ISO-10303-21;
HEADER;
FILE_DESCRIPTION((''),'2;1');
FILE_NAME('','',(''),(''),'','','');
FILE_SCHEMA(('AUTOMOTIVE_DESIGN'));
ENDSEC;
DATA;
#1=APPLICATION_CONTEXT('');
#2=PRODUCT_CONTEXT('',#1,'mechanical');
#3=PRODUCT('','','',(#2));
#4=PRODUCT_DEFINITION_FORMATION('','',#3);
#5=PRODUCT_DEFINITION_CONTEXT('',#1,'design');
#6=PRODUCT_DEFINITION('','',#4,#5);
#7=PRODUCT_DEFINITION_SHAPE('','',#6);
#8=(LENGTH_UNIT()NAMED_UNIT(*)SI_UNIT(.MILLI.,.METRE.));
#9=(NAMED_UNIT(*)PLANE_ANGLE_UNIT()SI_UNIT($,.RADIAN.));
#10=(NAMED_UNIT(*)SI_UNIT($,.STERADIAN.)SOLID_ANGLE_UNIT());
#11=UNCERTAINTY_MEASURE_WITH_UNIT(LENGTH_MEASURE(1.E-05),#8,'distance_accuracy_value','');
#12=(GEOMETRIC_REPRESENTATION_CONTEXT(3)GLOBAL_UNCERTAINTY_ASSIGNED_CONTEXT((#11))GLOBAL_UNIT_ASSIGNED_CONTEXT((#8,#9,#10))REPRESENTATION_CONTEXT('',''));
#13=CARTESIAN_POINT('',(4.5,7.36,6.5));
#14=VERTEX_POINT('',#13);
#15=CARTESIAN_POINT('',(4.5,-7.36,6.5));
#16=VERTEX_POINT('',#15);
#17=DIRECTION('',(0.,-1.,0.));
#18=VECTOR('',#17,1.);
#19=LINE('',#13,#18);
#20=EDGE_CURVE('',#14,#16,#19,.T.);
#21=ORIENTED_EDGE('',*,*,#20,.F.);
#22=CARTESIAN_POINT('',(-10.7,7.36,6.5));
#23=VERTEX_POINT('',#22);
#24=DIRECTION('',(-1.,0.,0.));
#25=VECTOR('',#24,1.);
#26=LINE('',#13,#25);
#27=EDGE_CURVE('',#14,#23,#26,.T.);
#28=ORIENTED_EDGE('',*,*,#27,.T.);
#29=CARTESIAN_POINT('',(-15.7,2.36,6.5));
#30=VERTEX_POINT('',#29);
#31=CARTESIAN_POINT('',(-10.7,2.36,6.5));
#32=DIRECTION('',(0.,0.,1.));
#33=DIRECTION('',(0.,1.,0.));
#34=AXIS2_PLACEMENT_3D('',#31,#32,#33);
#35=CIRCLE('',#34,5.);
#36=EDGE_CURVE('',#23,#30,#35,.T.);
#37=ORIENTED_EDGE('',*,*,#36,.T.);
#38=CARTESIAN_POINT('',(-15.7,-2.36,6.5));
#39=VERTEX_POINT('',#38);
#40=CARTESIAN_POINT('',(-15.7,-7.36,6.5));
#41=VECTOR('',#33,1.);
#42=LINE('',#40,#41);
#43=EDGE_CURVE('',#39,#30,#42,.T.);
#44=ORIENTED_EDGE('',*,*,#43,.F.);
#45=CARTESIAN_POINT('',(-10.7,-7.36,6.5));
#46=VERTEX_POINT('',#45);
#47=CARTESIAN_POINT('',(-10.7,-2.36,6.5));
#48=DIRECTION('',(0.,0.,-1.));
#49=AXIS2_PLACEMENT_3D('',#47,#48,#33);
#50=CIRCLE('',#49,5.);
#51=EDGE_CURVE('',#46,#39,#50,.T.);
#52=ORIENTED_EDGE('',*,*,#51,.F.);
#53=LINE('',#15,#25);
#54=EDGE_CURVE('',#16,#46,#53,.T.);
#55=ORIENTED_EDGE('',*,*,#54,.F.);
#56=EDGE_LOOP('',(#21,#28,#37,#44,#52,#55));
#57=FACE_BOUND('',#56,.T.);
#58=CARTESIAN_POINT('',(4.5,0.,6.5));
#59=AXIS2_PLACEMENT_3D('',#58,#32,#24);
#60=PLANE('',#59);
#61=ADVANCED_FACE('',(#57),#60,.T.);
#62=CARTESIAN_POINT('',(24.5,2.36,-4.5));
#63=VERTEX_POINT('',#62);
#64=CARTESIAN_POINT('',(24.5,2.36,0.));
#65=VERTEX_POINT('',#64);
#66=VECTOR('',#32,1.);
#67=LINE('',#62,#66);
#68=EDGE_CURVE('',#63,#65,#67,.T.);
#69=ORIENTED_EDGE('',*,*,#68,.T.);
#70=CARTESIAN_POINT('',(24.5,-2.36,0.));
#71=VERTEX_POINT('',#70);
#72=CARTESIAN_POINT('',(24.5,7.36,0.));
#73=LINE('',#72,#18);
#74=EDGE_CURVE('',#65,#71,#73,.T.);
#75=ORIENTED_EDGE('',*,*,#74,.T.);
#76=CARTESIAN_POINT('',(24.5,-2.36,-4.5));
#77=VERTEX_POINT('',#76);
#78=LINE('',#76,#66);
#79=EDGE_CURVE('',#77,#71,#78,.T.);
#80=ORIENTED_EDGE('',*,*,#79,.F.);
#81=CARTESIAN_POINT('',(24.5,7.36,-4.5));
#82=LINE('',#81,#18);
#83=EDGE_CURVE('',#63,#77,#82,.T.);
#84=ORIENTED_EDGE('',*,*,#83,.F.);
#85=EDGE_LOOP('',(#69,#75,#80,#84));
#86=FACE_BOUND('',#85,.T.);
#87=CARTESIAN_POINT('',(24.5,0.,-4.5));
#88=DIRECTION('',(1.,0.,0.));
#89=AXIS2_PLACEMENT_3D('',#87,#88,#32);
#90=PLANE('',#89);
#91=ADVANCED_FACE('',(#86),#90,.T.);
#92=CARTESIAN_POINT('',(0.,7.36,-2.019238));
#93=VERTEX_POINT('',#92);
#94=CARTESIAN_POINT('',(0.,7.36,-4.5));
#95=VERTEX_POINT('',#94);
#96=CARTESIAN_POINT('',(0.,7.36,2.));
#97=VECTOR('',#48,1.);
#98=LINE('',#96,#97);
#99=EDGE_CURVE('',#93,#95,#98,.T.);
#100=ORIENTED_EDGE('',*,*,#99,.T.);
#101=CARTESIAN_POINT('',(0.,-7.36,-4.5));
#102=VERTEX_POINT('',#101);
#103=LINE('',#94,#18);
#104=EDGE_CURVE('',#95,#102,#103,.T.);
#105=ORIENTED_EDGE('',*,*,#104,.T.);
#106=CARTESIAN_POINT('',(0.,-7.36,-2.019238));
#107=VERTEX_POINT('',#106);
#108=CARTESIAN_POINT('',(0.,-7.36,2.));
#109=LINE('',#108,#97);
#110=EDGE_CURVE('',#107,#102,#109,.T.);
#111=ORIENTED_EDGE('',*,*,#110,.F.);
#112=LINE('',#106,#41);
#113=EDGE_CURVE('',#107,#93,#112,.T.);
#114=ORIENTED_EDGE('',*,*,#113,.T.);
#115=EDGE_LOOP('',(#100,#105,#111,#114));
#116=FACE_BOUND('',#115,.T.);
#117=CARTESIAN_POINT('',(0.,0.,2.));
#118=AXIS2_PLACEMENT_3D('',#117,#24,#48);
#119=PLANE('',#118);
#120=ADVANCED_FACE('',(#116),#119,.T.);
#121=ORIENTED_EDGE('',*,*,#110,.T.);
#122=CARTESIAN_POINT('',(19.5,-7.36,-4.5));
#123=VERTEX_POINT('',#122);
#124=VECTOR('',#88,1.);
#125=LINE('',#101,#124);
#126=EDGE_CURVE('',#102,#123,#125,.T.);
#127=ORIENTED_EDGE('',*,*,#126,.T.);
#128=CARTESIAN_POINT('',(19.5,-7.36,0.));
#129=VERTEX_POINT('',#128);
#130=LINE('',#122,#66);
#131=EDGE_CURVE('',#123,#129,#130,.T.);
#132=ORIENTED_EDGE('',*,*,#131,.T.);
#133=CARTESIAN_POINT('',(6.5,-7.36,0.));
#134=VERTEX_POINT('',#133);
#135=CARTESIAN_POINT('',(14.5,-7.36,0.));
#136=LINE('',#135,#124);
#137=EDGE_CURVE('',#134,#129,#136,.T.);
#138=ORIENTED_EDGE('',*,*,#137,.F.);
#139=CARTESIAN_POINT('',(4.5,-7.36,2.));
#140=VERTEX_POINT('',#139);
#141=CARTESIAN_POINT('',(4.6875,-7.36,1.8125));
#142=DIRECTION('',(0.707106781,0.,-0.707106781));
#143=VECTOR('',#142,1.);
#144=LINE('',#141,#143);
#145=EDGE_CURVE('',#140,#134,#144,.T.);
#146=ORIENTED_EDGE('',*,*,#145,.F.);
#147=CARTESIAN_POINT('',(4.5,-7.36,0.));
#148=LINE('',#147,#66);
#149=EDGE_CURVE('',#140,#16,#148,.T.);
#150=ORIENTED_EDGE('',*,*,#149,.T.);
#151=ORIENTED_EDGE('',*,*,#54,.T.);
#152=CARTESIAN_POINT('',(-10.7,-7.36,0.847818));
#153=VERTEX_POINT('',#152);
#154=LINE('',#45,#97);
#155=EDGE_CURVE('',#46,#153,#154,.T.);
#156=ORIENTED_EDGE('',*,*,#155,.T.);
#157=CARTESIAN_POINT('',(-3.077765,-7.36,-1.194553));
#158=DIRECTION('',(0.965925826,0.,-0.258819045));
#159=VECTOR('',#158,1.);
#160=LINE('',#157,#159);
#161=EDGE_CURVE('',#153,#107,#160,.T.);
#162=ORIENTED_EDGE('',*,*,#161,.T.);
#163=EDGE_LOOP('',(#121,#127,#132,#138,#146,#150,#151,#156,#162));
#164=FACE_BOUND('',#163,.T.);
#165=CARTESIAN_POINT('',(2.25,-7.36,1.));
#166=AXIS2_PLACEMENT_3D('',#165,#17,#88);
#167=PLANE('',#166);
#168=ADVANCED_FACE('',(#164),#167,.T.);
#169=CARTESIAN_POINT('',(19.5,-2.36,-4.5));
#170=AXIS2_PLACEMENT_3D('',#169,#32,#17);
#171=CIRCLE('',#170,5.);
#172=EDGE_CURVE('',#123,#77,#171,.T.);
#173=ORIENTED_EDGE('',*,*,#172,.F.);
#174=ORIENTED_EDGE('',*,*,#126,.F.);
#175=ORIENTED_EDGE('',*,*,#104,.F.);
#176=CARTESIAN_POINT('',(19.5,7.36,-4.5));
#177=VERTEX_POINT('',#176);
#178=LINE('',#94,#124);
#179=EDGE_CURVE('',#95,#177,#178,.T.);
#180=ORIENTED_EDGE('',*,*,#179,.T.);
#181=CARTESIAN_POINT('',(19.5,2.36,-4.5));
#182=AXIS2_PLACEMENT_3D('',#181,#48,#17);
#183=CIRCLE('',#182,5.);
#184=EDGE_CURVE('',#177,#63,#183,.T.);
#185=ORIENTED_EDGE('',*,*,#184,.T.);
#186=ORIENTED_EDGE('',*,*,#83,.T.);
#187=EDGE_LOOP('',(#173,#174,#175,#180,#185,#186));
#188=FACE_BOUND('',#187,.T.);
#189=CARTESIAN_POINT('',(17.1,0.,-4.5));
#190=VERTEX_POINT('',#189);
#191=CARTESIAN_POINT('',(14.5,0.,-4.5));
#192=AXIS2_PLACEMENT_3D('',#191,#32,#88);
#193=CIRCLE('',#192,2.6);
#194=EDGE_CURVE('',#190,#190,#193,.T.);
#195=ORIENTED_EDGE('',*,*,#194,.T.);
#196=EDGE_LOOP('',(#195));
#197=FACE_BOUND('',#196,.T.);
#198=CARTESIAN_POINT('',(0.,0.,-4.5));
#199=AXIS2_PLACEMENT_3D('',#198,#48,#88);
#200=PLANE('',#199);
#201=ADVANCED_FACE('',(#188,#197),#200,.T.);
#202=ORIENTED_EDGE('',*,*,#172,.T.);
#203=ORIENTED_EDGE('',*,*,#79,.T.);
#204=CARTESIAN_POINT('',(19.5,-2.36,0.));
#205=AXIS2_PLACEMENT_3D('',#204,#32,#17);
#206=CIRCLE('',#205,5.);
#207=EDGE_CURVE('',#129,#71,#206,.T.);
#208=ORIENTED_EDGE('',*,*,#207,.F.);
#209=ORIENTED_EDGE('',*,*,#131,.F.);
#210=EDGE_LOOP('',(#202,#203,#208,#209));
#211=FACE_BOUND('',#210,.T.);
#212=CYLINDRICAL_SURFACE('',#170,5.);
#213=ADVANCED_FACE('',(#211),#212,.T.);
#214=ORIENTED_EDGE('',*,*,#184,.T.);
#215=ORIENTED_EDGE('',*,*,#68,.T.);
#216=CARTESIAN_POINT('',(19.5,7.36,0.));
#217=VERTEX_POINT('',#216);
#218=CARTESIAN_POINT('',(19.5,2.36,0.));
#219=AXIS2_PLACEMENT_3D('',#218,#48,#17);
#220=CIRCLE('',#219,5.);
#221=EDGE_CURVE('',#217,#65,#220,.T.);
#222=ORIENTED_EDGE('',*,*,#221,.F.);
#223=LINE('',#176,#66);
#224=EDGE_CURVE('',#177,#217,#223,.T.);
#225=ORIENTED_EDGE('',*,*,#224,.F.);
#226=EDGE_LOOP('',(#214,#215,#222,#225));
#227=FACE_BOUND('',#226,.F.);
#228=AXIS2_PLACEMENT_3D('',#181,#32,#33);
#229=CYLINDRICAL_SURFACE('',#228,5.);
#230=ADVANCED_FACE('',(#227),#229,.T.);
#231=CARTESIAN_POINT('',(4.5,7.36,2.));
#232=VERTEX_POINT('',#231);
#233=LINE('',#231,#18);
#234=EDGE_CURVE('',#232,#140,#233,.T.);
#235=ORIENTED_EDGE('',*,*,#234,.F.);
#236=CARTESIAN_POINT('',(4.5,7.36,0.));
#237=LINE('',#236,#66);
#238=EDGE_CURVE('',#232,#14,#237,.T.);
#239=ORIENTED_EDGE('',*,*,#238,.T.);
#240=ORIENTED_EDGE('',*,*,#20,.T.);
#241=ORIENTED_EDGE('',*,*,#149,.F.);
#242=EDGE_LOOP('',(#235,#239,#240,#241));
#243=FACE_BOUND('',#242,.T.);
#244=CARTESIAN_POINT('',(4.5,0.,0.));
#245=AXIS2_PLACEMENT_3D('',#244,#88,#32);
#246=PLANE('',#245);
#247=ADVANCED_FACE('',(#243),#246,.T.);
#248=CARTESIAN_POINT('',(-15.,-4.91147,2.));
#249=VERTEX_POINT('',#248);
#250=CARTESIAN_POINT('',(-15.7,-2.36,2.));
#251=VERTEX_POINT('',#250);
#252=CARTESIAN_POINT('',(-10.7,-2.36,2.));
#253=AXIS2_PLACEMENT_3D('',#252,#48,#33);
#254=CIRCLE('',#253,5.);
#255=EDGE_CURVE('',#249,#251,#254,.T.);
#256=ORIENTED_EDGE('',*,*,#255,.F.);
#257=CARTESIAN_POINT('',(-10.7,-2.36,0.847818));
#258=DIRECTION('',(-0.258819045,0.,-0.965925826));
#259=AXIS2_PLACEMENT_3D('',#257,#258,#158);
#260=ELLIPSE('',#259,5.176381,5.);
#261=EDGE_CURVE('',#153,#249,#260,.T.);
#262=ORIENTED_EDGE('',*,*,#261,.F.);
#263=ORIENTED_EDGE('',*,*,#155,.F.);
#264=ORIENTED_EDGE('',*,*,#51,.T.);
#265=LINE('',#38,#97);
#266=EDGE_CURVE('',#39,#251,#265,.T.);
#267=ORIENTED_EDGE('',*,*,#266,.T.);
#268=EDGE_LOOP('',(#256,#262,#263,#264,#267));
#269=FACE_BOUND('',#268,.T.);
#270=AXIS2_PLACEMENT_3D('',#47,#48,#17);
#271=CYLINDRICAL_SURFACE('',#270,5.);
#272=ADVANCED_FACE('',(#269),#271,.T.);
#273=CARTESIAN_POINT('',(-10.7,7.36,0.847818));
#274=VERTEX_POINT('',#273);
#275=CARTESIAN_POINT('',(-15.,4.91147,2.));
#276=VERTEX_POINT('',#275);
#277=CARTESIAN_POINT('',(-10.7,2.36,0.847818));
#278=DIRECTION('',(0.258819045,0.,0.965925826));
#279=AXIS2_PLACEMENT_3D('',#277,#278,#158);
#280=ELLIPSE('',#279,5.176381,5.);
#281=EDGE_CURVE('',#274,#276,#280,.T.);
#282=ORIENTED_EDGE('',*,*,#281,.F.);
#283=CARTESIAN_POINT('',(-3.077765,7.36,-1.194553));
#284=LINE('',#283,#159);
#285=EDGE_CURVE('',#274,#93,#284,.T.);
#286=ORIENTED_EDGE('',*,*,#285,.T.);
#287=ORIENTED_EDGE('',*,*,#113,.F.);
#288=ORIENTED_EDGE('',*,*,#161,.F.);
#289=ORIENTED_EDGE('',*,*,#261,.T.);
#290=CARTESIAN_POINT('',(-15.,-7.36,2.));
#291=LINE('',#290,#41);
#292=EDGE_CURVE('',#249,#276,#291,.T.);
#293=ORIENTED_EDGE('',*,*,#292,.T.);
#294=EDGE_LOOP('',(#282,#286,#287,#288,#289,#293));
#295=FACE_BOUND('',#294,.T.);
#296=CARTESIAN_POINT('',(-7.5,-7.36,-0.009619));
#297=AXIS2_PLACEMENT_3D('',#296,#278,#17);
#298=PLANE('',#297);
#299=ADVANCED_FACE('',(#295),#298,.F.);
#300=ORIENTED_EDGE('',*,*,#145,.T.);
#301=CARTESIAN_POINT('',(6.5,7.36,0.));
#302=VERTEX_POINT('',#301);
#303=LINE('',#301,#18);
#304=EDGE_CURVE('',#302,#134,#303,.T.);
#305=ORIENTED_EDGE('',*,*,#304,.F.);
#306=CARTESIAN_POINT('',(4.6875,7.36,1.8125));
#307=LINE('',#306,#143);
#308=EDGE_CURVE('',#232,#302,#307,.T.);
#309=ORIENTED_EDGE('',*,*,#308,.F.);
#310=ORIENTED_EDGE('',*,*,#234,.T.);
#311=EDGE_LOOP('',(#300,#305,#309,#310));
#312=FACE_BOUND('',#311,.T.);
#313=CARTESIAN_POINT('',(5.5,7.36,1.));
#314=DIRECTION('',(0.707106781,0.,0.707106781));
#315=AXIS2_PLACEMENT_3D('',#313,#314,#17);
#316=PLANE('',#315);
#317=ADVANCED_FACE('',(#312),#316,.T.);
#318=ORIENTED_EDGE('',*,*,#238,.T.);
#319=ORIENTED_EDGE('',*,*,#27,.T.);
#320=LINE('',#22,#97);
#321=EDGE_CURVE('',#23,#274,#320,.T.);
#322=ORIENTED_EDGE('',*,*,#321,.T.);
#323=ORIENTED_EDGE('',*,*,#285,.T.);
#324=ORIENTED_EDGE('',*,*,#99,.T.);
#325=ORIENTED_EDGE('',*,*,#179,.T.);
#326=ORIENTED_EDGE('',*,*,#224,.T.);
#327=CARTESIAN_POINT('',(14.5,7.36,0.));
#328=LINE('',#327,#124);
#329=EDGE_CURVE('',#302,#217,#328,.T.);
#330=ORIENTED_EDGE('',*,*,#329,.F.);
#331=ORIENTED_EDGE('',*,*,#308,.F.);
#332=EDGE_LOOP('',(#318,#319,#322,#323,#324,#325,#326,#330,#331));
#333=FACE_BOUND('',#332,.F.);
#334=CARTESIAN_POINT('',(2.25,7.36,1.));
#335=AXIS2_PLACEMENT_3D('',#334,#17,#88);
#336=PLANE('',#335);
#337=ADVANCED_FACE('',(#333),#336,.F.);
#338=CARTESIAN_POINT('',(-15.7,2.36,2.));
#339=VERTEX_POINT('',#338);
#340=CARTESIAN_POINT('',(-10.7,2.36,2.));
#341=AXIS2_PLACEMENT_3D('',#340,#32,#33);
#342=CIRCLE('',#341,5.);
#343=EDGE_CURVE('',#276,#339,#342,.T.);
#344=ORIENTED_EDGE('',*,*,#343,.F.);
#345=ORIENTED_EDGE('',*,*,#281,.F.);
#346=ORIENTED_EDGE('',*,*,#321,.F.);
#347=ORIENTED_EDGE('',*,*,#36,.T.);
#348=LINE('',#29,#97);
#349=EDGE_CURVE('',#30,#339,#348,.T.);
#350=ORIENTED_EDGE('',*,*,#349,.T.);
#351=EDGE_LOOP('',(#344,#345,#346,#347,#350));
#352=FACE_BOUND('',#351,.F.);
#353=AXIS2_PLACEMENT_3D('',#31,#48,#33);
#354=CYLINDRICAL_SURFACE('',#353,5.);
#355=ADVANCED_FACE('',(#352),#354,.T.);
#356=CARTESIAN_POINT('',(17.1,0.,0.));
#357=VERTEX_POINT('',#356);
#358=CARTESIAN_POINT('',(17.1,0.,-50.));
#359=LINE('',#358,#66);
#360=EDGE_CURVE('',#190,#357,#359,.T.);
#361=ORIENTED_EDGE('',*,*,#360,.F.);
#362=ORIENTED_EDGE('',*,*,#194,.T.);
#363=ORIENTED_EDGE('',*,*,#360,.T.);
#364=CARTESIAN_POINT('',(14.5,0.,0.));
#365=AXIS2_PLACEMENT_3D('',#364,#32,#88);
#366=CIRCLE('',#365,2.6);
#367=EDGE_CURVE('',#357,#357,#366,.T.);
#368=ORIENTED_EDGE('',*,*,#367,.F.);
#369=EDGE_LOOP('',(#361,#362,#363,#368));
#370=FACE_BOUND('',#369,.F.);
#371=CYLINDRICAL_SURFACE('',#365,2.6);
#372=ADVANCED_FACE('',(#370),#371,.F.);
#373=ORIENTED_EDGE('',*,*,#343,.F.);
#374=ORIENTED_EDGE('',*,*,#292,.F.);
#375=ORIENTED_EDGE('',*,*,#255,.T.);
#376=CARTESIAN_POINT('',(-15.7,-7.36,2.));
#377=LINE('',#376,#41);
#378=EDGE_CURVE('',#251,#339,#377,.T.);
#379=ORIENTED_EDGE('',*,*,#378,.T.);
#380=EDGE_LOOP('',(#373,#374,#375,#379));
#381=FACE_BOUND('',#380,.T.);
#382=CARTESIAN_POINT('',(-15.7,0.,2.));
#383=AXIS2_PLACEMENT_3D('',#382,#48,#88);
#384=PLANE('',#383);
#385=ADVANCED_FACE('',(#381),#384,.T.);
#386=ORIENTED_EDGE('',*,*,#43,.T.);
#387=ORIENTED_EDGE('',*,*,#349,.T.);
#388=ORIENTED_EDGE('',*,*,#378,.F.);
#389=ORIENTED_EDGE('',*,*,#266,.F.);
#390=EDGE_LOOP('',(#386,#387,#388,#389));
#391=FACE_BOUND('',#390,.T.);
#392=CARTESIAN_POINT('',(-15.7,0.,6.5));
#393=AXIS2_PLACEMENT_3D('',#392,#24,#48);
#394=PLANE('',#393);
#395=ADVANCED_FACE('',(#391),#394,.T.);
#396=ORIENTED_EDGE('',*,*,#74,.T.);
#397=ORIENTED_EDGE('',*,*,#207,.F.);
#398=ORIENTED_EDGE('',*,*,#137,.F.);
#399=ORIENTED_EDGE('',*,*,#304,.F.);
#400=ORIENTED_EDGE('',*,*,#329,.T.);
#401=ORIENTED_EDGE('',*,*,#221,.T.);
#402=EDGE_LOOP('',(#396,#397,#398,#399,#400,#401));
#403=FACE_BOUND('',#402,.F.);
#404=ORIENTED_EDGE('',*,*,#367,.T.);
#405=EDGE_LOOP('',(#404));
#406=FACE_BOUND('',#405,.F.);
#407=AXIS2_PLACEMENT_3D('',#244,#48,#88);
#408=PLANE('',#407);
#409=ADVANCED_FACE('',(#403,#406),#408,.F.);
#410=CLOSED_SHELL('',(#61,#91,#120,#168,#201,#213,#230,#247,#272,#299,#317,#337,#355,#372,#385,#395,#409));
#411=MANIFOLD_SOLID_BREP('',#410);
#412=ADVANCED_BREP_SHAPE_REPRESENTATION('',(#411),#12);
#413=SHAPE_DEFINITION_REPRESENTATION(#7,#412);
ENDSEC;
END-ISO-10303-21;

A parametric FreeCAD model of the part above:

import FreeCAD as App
import Part
import Sketcher
from FreeCAD import Vector


def edges_at(feature, points):
    """Names of the edges that pass closest to the given points."""
    edges = feature.Shape.Edges
    near = lambda p: min(range(len(edges)), key=lambda i: edges[i].distToShape(Part.Vertex(*p))[0])
    return sorted({f"Edge{near(p) + 1}" for p in points})


def add_polygon(sketch, points):
    """Adds a closed chain of lines whose ends are joined by coincident constraints."""
    first, n = sketch.GeometryCount, len(points)
    for a, b in zip(points, points[1:] + points[:1]):
        sketch.addGeometry(Part.LineSegment(App.Vector(*a, 0), App.Vector(*b, 0)), False)
    for i in range(n):
        sketch.addConstraint(Sketcher.Constraint("Coincident", first + i, 2, first + (i + 1) % n, 1))

doc = App.newDocument("Part")
params = doc.addObject("Spreadsheet::Sheet", "Params")
for row, (alias, value) in enumerate([
    ("sketch1_width", "20 mm"),
    ("sketch1_width2", "24.5 mm"),
    ("sketch1_width3", "20.2 mm"),
    ("sketch1_height", "6.5 mm"),
    ("sketch1_height2", "4.5 mm"),
    ("pad1_length", "14.72 mm"),
    ("sketch2_diameter", "5.2 mm"),
    ("pocket1_length", "100 mm"),
    ("chamfer_size", "15 mm"),
    ("chamfer_size2", "4.019238 mm"),
    ("fillet_radius", "5 mm"),
    ("chamfer2_size", "2 mm"),
], start=1):
    params.set(f"A{row}", alias)
    params.set(f"B{row}", "=" + value)
    params.setAlias(f"B{row}", alias)

body = doc.addObject("PartDesign::Body", "Body")

# Sketch on XZ plane
sketch1 = body.newObject("Sketcher::SketchObject", "Sketch")
sketch1.AttachmentSupport = (doc.getObject("XZ_Plane"), [""])
sketch1.MapMode = "FlatFace"
add_polygon(sketch1, [(0, 2), (0, -4.5), (24.5, -4.5), (24.5, 0), (4.5, 0), (4.5, 6.5), (-15.7, 6.5), (-15.7, 2)])  # lines 0-7
sketch1.addConstraint([
    Sketcher.Constraint("Vertical", 0),
    Sketcher.Constraint("Horizontal", 1),
    Sketcher.Constraint("Vertical", 2),
    Sketcher.Constraint("Horizontal", 3),
    Sketcher.Constraint("Vertical", 4),
    Sketcher.Constraint("Horizontal", 5),
    Sketcher.Constraint("Vertical", 6),
    Sketcher.Constraint("Horizontal", 7),
    Sketcher.Constraint("PointOnObject", 0, 2, -2),
    Sketcher.Constraint("PointOnObject", 2, 2, -1),
    Sketcher.Constraint("Equal", 0, 4),
    Sketcher.Constraint("DistanceX", 3, 2, 3, 1, 20.0),
    Sketcher.Constraint("DistanceX", 1, 1, 1, 2, 24.5),
    Sketcher.Constraint("DistanceX", 5, 2, 5, 1, 20.2),
    Sketcher.Constraint("DistanceY", 0, 2, 0, 1, 6.5),
    Sketcher.Constraint("DistanceY", 2, 1, 2, 2, 4.5),
])
sketch1.setExpression("Constraints[19]", "Params.sketch1_width")
sketch1.setExpression("Constraints[20]", "Params.sketch1_width2")
sketch1.setExpression("Constraints[21]", "Params.sketch1_width3")
sketch1.setExpression("Constraints[22]", "Params.sketch1_height")
sketch1.setExpression("Constraints[23]", "Params.sketch1_height2")
pad1 = body.newObject("PartDesign::Pad", "Pad")
pad1.Profile = sketch1
pad1.setExpression("Length", "Params.pad1_length")
pad1.Midplane = True

# Sketch on XY plane
sketch2 = body.newObject("Sketcher::SketchObject", "Sketch001")
sketch2.AttachmentSupport = (doc.getObject("XY_Plane"), [""])
sketch2.MapMode = "FlatFace"
sketch2.addGeometry(Part.Circle(Vector(14.5, 0, 0), Vector(0, 0, 1), 2.6), False)
sketch2.addConstraint([
    Sketcher.Constraint("PointOnObject", 0, 3, -1),
    Sketcher.Constraint("Diameter", 0, 5.2),
    Sketcher.Constraint("DistanceX", -1, 1, 0, 3, 14.5),
])
sketch2.setExpression("Constraints[1]", "Params.sketch2_diameter")
pocket1 = body.newObject("PartDesign::Pocket", "Pocket")
pocket1.Profile = sketch2
pocket1.setExpression("Length", "Params.pocket1_length")
pocket1.Midplane = True
doc.recompute()

chamfer = body.newObject("PartDesign::Chamfer", "Chamfer")
chamfer.Base = (pocket1, edges_at(pocket1, [(0, 0, 2)]))
chamfer.ChamferType = "Two distances"
chamfer.setExpression("Size", "Params.chamfer_size")
chamfer.setExpression("Size2", "Params.chamfer_size2")
chamfer.FlipDirection = True
doc.recompute()

fillet = body.newObject("PartDesign::Fillet", "Fillet")
fillet.Base = (chamfer, edges_at(chamfer, [
    (-15.7, 7.36, 4.25),
    (-15.7, -7.36, 4.25),
    (24.5, 7.36, -2.25),
    (24.5, -7.36, -2.25),
]))
fillet.setExpression("Radius", "Params.fillet_radius")
doc.recompute()

chamfer2 = body.newObject("PartDesign::Chamfer", "Chamfer001")
chamfer2.Base = (fillet, edges_at(fillet, [(4.5, 0, 0)]))
chamfer2.setExpression("Size", "Params.chamfer2_size")

doc.recompute()
